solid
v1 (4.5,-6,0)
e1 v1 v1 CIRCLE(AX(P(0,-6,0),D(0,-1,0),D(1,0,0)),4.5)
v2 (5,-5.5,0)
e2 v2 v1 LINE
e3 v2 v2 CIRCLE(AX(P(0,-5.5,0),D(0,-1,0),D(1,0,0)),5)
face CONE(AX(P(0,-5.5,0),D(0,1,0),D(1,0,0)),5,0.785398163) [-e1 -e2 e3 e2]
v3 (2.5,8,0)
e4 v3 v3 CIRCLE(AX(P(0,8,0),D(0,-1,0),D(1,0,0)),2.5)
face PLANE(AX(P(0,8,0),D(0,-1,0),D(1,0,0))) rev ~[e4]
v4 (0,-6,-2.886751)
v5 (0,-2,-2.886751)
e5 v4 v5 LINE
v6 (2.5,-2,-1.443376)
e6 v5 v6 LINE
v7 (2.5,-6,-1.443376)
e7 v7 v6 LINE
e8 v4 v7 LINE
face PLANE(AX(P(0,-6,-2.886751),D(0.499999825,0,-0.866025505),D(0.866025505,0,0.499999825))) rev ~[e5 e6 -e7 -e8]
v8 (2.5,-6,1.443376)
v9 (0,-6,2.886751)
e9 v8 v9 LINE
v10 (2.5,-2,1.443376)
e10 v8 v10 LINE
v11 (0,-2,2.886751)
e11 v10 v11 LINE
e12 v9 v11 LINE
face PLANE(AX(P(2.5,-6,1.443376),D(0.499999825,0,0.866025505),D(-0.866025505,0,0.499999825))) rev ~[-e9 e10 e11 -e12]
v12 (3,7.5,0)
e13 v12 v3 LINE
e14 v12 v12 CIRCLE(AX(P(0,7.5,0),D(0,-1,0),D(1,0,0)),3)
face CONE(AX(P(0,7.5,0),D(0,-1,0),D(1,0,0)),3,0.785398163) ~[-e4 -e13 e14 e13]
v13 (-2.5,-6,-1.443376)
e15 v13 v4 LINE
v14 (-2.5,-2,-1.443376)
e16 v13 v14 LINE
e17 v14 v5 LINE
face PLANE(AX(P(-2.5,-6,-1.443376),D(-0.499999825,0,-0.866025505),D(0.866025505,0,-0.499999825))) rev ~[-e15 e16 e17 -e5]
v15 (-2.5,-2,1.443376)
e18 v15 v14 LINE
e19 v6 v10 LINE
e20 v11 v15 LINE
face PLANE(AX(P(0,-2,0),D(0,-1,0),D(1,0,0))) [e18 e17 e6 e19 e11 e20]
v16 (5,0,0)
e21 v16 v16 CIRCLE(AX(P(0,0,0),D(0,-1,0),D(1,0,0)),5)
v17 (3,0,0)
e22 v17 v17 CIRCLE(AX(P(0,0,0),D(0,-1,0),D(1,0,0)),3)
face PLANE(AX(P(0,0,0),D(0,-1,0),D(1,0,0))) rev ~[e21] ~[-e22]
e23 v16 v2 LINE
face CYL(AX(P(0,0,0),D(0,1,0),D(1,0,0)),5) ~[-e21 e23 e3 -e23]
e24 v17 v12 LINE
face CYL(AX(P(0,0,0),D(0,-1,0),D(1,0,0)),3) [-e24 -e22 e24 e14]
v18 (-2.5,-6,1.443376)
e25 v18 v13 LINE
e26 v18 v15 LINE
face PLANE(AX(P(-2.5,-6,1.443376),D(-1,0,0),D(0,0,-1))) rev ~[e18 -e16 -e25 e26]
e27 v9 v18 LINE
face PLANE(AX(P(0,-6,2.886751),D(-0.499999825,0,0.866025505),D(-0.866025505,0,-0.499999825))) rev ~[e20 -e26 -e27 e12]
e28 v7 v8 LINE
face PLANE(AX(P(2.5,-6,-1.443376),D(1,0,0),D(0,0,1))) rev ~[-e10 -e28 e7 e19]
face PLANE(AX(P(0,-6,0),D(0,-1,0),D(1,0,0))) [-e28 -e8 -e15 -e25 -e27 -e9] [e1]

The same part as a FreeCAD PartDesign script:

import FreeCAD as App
import Part
import Sketcher
Q = App.Units.Quantity


def edges_at(feature, points):
    """Names of the edges that pass closest to the given points."""
    edges = feature.Shape.Edges
    near = lambda p: min(range(len(edges)), key=lambda i: edges[i].distToShape(Part.Vertex(*p))[0])
    return sorted({f"Edge{near(p) + 1}" for p in points})


def add_polygon(sketch, points):
    """Adds a closed chain of lines whose ends are joined by coincident constraints."""
    first, n = sketch.GeometryCount, len(points)
    for a, b in zip(points, points[1:] + points[:1]):
        sketch.addGeometry(Part.LineSegment(App.Vector(*a, 0), App.Vector(*b, 0)), False)
    for i in range(n):
        sketch.addConstraint(Sketcher.Constraint("Coincident", first + i, 2, first + (i + 1) % n, 1))

doc = App.newDocument("Part")
body = doc.addObject("PartDesign::Body", "Body")

# Sketch on XZ plane
sketch1 = doc.addObject("Sketcher::SketchObject", "Sketch")
body.addObject(sketch1)
sketch1.AttachmentSupport = (doc.XZ_Plane, [""])
sketch1.MapMode = "FlatFace"
sketch1.addGeometry(Part.Circle(App.Vector(0, 0, 0), App.Vector(0, 0, 1), 5), False)
sketch1.addConstraint([
    Sketcher.Constraint("Coincident", 0, 3, -1, 1),
    Sketcher.Constraint("Diameter", 0, Q("10 mm")),
])
pad1 = doc.addObject("PartDesign::Pad", "Pad")
body.addObject(pad1)
pad1.Profile = sketch1
pad1.Length = 6

# Sketch on XZ plane
sketch2 = doc.addObject("Sketcher::SketchObject", "Sketch001")
body.addObject(sketch2)
sketch2.AttachmentSupport = (doc.XZ_Plane, [""])
sketch2.MapMode = "FlatFace"
sketch2.addGeometry(Part.Circle(App.Vector(0, 0, 0), App.Vector(0, 0, 1), 3), False)
sketch2.addConstraint([
    Sketcher.Constraint("Coincident", 0, 3, -1, 1),
    Sketcher.Constraint("Diameter", 0, Q("6 mm")),
])
pad2 = doc.addObject("PartDesign::Pad", "Pad001")
body.addObject(pad2)
pad2.Profile = sketch2
pad2.Length = 8
pad2.Reversed = True
doc.recompute()

chamfer = doc.addObject("PartDesign::Chamfer", "Chamfer")
body.addObject(chamfer)
chamfer.Base = (pad2, edges_at(pad2, [(-5, -6, 0), (-3, 8, 0)]))
chamfer.Size = 0.5

# Sketch on XZ plane
sketch3 = doc.addObject("Sketcher::SketchObject", "Sketch002")
body.addObject(sketch3)
sketch3.AttachmentSupport = (doc.XZ_Plane, [""])
sketch3.MapMode = "FlatFace"
sketch3.AttachmentOffset = App.Placement(App.Vector(0, 0, 6), App.Rotation())
add_polygon(sketch3, [(2.5, -1.4), (2.5, 1.4), (0, 2.9), (-2.5, 1.4), (-2.5, -1.4), (0, -2.9)])  # lines 0-5
sketch3.addConstraint([
    Sketcher.Constraint("Vertical", 0),
    Sketcher.Constraint("Vertical", 3),
    Sketcher.Constraint("Symmetric", 0, 2, 3, 2, -1, 1),
    Sketcher.Constraint("Symmetric", 1, 2, 4, 2, -1, 1),
    Sketcher.Constraint("PointOnObject", 1, 2, -2),
    Sketcher.Constraint("Parallel", 2, 5),
    Sketcher.Constraint("Horizontal", 0, 2, 2, 2),
    Sketcher.Constraint("Angle", 1, Q("150.000012 deg")),
    Sketcher.Constraint("DistanceX", 2, 2, 0, 2, Q("5 mm")),
    Sketcher.Constraint("DistanceY", 0, 1, 0, 2, Q("2.886752 mm")),
])
pocket1 = doc.addObject("PartDesign::Pocket", "Pocket")
body.addObject(pocket1)
pocket1.Profile = sketch3
pocket1.Length = 4

doc.recompute()
